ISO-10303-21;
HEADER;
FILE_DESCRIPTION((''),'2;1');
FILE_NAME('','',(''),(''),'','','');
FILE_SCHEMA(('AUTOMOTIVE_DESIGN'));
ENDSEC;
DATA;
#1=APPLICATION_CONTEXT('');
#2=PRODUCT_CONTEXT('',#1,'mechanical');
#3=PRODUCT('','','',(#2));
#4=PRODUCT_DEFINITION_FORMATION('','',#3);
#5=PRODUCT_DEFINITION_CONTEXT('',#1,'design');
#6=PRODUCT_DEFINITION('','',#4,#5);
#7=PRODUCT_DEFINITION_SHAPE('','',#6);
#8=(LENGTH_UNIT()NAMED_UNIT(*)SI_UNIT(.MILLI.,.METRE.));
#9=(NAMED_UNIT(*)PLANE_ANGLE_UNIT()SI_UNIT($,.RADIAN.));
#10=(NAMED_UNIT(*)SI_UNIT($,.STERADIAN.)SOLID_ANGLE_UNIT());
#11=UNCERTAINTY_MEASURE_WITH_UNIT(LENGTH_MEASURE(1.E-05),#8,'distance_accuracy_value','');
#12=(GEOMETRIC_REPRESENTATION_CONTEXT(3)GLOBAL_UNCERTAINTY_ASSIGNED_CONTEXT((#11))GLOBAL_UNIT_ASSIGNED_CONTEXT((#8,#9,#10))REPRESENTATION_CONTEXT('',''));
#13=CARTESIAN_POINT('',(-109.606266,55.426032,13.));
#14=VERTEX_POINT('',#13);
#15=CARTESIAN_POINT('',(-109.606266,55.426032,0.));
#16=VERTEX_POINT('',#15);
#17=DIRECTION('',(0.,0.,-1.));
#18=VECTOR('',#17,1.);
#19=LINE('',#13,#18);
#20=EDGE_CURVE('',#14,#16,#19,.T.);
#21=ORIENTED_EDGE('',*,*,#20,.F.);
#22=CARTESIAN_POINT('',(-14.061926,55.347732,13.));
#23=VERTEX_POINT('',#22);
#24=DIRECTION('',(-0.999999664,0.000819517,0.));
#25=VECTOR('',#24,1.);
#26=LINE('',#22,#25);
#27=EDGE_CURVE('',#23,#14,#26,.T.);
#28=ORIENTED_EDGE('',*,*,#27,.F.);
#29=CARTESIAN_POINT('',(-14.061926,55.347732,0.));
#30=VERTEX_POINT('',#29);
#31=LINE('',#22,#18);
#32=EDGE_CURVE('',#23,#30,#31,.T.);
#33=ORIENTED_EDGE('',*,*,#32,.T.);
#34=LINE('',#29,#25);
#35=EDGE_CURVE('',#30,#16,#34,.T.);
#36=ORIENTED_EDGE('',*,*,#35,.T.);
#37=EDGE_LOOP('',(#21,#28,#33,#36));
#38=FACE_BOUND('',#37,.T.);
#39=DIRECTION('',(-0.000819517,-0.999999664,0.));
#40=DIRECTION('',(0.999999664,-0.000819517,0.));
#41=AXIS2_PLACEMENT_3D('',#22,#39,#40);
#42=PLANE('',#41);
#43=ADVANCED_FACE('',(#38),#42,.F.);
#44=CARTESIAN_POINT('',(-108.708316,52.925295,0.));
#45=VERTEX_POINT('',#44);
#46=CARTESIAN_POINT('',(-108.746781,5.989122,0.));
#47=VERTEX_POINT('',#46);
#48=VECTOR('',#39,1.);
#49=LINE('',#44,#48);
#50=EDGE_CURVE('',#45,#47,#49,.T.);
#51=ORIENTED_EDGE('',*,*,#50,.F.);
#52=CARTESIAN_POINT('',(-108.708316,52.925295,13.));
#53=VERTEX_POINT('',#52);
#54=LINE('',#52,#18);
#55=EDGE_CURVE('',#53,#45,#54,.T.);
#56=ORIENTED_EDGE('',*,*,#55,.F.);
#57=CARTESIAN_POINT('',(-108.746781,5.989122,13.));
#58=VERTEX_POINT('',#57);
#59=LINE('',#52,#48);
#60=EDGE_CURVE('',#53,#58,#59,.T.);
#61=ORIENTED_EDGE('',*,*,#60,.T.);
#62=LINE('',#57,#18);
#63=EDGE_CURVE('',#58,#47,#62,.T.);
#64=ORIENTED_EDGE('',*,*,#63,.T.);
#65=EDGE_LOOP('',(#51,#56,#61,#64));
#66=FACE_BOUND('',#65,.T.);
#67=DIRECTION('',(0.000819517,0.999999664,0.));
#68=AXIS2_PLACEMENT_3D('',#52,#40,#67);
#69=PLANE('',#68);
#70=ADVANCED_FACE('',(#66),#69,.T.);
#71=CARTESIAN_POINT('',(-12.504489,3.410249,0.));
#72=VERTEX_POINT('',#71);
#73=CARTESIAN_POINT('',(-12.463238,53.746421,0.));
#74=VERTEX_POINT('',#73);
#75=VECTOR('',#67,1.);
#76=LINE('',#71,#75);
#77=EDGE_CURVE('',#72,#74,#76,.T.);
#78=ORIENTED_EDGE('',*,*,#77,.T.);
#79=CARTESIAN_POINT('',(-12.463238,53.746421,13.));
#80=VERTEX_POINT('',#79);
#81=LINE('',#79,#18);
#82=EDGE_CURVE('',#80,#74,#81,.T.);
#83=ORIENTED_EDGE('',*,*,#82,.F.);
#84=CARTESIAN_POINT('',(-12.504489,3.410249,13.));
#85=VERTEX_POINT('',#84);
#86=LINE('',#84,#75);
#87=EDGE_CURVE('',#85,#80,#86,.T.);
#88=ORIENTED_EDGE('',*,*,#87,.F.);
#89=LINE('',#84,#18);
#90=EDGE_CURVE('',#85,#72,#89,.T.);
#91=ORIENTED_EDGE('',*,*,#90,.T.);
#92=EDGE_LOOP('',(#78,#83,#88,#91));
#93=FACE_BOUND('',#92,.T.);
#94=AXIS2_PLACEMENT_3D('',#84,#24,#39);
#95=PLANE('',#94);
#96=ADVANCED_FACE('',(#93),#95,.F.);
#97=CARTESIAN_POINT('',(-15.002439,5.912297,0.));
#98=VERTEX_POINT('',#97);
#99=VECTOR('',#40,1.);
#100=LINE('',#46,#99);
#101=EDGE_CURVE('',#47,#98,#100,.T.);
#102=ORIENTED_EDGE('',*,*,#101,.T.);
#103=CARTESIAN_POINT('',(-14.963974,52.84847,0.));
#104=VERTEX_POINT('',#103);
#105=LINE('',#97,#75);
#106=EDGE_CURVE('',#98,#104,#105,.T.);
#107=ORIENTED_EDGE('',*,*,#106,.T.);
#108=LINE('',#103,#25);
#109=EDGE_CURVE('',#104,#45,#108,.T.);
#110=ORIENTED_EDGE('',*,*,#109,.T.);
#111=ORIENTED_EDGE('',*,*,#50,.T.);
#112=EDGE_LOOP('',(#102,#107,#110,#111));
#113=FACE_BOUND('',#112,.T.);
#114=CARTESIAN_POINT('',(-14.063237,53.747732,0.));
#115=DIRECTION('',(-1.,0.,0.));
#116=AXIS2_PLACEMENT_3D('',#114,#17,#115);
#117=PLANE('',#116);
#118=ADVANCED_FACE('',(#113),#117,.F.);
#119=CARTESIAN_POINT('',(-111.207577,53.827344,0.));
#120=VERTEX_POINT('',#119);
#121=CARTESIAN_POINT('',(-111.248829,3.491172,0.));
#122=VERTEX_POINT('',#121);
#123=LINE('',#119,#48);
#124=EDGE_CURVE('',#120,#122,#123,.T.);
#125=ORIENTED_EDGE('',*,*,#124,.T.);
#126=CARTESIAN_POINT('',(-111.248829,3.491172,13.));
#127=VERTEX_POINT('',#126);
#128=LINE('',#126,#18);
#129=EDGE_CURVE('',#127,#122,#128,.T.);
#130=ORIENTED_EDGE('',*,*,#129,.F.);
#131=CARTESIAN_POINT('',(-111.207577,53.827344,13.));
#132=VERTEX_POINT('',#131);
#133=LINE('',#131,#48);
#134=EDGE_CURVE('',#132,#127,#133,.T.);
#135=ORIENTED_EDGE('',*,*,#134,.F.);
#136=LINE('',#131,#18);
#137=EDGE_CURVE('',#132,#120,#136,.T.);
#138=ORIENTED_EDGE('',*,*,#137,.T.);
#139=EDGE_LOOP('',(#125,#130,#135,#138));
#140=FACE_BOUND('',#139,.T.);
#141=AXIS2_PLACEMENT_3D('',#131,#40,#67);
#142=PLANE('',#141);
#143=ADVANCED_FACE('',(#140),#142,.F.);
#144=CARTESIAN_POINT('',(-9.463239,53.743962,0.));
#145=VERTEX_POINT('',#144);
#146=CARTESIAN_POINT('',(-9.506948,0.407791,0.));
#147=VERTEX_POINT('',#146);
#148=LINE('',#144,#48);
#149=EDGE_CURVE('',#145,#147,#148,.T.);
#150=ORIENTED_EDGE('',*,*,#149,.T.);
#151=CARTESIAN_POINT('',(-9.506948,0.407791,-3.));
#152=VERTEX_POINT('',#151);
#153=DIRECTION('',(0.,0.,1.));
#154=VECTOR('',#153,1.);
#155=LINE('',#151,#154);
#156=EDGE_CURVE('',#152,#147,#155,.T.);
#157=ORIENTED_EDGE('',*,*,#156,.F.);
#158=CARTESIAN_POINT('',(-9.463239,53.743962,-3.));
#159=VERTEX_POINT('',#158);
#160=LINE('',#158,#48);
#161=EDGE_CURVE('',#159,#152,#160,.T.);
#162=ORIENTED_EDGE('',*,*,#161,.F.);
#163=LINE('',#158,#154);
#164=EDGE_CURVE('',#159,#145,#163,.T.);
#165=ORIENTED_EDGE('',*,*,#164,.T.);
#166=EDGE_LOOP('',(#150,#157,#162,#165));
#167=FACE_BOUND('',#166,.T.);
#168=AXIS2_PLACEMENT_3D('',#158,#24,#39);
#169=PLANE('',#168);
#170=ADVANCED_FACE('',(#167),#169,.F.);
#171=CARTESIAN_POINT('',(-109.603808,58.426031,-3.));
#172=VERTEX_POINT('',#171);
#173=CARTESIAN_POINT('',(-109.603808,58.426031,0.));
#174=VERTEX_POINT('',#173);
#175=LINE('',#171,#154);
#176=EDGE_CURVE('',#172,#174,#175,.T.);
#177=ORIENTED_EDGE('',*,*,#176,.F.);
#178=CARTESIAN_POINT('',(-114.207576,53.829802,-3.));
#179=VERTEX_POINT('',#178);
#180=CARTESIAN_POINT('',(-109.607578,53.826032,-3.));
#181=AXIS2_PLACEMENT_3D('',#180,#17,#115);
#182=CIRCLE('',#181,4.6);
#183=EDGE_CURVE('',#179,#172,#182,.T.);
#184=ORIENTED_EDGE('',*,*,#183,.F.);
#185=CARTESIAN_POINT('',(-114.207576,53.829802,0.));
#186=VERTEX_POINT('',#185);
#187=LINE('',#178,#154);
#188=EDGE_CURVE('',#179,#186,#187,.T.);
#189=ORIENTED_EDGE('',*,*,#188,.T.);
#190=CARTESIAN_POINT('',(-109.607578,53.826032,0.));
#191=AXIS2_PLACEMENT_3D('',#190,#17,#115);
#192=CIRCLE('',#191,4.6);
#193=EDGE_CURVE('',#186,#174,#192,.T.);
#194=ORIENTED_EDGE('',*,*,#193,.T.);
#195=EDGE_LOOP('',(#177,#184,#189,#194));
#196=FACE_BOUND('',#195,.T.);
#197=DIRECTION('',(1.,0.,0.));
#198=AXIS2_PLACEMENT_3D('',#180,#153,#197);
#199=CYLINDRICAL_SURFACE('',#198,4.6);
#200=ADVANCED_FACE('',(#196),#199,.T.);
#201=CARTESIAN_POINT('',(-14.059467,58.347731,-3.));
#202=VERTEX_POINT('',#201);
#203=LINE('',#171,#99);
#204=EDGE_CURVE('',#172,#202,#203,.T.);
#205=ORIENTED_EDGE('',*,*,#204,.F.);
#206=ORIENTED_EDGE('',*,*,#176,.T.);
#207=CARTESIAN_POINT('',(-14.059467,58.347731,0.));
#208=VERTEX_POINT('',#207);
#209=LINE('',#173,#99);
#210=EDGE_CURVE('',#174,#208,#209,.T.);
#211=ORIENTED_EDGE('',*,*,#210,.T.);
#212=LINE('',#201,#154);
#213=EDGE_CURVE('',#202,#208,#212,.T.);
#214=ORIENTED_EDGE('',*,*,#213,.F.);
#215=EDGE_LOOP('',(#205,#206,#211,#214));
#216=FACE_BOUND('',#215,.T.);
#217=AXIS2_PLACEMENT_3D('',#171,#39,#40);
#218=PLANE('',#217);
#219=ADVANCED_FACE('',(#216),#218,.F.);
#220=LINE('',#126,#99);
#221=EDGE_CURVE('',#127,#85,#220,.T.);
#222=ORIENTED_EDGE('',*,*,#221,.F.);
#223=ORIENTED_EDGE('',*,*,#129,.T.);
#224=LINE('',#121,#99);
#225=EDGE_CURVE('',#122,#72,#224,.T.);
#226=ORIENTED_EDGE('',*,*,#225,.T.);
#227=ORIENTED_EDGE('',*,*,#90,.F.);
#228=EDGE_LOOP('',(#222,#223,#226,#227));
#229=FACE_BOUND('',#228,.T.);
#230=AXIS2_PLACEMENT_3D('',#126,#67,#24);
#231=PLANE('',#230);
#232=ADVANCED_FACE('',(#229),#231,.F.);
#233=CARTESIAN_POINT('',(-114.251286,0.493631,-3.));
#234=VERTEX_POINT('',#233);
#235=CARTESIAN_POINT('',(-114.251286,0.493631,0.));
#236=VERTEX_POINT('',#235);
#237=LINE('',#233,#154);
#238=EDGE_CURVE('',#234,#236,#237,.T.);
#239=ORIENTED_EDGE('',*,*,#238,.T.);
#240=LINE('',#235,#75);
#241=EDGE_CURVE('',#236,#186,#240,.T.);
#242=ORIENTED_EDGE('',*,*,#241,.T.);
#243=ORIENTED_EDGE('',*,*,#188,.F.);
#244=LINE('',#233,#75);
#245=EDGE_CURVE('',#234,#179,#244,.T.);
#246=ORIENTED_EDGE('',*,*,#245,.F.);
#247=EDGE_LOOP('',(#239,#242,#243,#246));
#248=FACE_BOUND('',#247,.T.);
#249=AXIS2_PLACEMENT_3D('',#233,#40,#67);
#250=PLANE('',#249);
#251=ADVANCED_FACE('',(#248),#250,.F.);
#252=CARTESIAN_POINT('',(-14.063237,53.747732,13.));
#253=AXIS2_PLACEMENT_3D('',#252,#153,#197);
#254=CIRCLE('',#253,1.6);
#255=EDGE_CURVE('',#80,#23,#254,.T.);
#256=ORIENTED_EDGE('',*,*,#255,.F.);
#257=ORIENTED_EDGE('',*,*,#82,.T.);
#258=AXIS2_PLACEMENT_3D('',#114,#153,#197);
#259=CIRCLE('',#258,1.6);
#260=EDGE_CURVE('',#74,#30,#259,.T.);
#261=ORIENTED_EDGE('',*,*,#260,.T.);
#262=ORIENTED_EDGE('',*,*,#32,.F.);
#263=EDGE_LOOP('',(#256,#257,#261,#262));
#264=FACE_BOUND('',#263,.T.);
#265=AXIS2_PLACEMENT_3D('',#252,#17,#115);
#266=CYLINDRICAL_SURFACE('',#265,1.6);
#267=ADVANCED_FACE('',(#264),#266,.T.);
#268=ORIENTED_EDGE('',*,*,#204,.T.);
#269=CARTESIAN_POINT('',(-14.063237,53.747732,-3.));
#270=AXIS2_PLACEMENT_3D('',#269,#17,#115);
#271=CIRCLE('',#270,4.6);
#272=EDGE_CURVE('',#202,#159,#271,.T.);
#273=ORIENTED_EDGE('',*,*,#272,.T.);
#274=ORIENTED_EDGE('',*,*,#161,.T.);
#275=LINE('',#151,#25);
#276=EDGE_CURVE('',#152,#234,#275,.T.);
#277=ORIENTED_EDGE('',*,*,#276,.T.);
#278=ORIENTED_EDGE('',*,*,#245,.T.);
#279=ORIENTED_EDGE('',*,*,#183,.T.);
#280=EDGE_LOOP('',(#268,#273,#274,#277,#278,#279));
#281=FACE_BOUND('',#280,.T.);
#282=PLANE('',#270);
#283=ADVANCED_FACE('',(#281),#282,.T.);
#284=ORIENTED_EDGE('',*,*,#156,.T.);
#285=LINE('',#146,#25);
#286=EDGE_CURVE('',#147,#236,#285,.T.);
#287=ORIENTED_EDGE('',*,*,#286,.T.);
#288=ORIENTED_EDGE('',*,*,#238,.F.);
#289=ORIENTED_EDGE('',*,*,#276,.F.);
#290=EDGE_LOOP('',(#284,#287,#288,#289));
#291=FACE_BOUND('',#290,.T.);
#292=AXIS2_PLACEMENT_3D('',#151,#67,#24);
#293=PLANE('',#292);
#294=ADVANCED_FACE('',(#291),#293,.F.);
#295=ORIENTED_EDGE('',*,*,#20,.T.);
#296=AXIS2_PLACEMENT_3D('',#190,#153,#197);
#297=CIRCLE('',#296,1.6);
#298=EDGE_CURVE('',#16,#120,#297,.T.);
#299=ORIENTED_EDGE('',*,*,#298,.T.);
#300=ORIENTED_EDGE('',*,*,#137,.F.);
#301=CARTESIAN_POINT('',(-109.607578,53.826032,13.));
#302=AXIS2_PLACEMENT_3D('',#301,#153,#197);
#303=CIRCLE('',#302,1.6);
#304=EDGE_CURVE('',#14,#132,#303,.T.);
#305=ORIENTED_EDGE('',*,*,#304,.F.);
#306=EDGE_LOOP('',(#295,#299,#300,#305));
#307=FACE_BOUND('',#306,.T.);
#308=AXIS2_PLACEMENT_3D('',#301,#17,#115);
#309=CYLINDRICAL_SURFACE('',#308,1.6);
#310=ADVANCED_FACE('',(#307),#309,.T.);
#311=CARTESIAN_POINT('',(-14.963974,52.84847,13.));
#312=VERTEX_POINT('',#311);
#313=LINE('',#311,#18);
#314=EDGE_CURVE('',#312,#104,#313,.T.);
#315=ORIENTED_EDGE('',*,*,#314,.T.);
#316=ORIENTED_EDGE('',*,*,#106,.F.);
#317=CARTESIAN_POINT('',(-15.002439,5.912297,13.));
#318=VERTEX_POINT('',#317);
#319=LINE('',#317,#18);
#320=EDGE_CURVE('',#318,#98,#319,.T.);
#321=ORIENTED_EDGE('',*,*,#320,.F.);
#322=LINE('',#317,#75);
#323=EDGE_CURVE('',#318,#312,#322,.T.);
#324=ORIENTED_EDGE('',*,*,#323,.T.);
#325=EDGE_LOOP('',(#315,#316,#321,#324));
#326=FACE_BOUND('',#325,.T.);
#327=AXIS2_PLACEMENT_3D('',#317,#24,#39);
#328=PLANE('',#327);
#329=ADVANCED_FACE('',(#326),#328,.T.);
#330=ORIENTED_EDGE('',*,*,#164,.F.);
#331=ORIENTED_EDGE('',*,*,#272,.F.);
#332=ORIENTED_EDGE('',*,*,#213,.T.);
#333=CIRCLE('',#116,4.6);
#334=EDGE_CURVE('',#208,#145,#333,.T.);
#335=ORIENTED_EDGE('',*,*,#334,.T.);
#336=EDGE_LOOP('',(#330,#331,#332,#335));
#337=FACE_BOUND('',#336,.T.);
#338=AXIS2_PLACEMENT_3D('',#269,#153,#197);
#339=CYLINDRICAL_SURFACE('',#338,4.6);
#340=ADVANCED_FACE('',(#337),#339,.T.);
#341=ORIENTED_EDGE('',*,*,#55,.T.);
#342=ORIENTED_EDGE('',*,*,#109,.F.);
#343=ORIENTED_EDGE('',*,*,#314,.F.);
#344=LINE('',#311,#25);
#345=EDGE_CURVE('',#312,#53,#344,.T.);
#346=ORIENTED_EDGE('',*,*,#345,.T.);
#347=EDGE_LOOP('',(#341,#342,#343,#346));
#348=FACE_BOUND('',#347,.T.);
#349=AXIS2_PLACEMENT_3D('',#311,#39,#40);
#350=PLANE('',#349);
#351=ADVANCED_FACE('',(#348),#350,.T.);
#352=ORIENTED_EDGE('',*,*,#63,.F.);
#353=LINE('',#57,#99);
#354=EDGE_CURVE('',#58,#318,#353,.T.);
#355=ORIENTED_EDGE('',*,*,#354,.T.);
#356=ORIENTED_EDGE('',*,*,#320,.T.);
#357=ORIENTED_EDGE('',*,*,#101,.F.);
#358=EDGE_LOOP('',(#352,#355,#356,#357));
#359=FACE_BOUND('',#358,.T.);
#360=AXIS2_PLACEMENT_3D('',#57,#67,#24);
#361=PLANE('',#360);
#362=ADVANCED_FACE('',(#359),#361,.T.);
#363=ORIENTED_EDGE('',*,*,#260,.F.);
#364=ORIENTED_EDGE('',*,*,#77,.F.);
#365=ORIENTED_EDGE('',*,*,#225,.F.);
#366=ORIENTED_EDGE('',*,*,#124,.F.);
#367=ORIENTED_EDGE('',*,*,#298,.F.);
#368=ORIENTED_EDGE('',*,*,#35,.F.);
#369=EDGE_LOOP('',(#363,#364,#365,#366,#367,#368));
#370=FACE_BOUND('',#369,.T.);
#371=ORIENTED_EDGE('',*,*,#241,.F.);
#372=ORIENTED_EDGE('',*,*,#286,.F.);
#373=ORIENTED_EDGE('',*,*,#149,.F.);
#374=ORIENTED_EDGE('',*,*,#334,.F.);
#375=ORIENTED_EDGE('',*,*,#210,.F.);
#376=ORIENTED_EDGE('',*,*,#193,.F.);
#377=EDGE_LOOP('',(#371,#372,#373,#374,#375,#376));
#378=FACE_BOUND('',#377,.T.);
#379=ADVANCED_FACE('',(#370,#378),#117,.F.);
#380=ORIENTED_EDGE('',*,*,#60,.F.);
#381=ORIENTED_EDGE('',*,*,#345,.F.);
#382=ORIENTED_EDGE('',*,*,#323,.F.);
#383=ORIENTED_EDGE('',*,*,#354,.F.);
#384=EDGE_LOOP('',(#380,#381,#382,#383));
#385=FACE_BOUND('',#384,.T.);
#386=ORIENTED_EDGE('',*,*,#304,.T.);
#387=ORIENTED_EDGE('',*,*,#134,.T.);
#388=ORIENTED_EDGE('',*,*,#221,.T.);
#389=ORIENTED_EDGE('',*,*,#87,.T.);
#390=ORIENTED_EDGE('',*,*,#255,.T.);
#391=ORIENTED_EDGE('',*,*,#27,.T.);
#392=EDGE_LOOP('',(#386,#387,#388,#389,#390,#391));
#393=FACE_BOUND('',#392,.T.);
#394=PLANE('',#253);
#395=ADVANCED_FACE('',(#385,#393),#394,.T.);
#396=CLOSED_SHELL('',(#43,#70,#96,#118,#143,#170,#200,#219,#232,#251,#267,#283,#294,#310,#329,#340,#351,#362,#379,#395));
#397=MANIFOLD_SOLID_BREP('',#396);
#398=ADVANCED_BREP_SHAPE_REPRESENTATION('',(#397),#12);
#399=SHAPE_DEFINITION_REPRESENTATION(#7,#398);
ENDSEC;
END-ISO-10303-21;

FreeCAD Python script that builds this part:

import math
import FreeCAD as App
import Part
import Sketcher
from FreeCAD import Vector
Q = App.Units.Quantity


def add_polygon(sketch, points):
    """Adds a closed chain of lines whose ends are joined by coincident constraints."""
    first, n = sketch.GeometryCount, len(points)
    for a, b in zip(points, points[1:] + points[:1]):
        sketch.addGeometry(Part.LineSegment(App.Vector(*a, 0), App.Vector(*b, 0)), False)
    for i in range(n):
        sketch.addConstraint(Sketcher.Constraint("Coincident", first + i, 2, first + (i + 1) % n, 1))

doc = App.newDocument("Part")
body = doc.addObject("PartDesign::Body", "Body")

# Sketch on XY plane
sketch1 = doc.addObject("Sketcher::SketchObject", "Sketch")
body.addObject(sketch1)
sketch1.AttachmentSupport = (doc.XY_Plane, [""])
sketch1.MapMode = "FlatFace"
sketch1.addGeometry(Part.LineSegment(Vector(-111.2, 3.5, 0), Vector(-12.5, 3.4, 0)), False)  # 0
sketch1.addGeometry(Part.LineSegment(Vector(-12.5, 3.4, 0), Vector(-12.5, 53.7, 0)), False)  # 1
sketch1.addGeometry(Part.ArcOfCircle(Part.Circle(Vector(-14.1, 53.7, 0), Vector(0, 0, 1), 1.6), math.radians(0), math.radians(90)), False)  # 2
sketch1.addGeometry(Part.LineSegment(Vector(-14.1, 55.3, 0), Vector(-109.6, 55.4, 0)), False)  # 3
sketch1.addGeometry(Part.ArcOfCircle(Part.Circle(Vector(-109.6, 53.8, 0), Vector(0, 0, 1), 1.6), math.radians(90), math.radians(180)), False)  # 4
sketch1.addGeometry(Part.LineSegment(Vector(-111.2, 53.8, 0), Vector(-111.2, 3.5, 0)), False)  # 5
add_polygon(sketch1, [(-15, 5.9), (-108.7, 6), (-108.7, 52.9), (-15, 52.8)])  # lines 6-9
sketch1.addConstraint([
    Sketcher.Constraint("Coincident", 0, 2, 1, 1),
    Sketcher.Constraint("Tangent", 1, 2, 2, 1),
    Sketcher.Constraint("Tangent", 2, 2, 3, 1),
    Sketcher.Constraint("Tangent", 3, 2, 4, 1),
    Sketcher.Constraint("Tangent", 4, 2, 5, 1),
    Sketcher.Constraint("Coincident", 5, 2, 0, 1),
    Sketcher.Constraint("Equal", 2, 4),
    Sketcher.Constraint("Perpendicular", 0, 1),
    Sketcher.Constraint("Perpendicular", 1, 3),
    Sketcher.Constraint("Perpendicular", 3, 5),
    Sketcher.Constraint("Perpendicular", 5, 6),
    Sketcher.Constraint("Perpendicular", 6, 7),
    Sketcher.Constraint("Perpendicular", 7, 8),
    Sketcher.Constraint("Perpendicular", 8, 9),
    Sketcher.Constraint("Radius", 2, Q("1.6 mm")),
    Sketcher.Constraint("DistanceY", 2, 3, 4, 3, Q("0.0783 mm")),
    Sketcher.Constraint("DistanceX", 9, 2, 1, 2, Q("2.539202 mm")),
    Sketcher.Constraint("Distance", 1, Q("50.336189 mm")),
    Sketcher.Constraint("Distance", 7, Q("46.936189 mm")),
    Sketcher.Constraint("DistanceX", 0, 2, -1, 1, Q("12.504489 mm")),
    Sketcher.Constraint("DistanceY", -1, 1, 0, 2, Q("3.410249 mm")),
    Sketcher.Constraint("DistanceX", 5, 2, -1, 1, Q("111.248829 mm")),
    Sketcher.Constraint("DistanceX", 6, 2, -1, 1, Q("108.746781 mm")),
    Sketcher.Constraint("DistanceY", -1, 1, 6, 2, Q("5.989122 mm")),
])
pad1 = doc.addObject("PartDesign::Pad", "Pad")
body.addObject(pad1)
pad1.Profile = sketch1
pad1.Length = 13

# Sketch on XY plane
sketch2 = doc.addObject("Sketcher::SketchObject", "Sketch001")
body.addObject(sketch2)
sketch2.AttachmentSupport = (doc.XY_Plane, [""])
sketch2.MapMode = "FlatFace"
sketch2.addGeometry([
    Part.LineSegment(Vector(-9.5, 53.7, 0), Vector(-9.5, 0.4, 0)),  # 0
    Part.LineSegment(Vector(-9.5, 0.4, 0), Vector(-114.3, 0.5, 0)),  # 1
    Part.LineSegment(Vector(-114.3, 0.5, 0), Vector(-114.2, 53.8, 0)),  # 2
    Part.ArcOfCircle(Part.Circle(Vector(-109.6, 53.8, 0), Vector(0, 0, 1), 4.6), math.radians(90), math.radians(180)),  # 3
    Part.LineSegment(Vector(-109.6, 58.4, 0), Vector(-14.1, 58.3, 0)),  # 4
    Part.ArcOfCircle(Part.Circle(Vector(-14.1, 53.7, 0), Vector(0, 0, 1), 4.6), math.radians(0), math.radians(90)),  # 5
], False)
sketch2.addConstraint([
    Sketcher.Constraint("Coincident", 0, 2, 1, 1),
    Sketcher.Constraint("Coincident", 1, 2, 2, 1),
    Sketcher.Constraint("Tangent", 2, 2, 3, 2),
    Sketcher.Constraint("Tangent", 3, 1, 4, 1),
    Sketcher.Constraint("Tangent", 4, 2, 5, 2),
    Sketcher.Constraint("Tangent", 5, 1, 0, 1),
    Sketcher.Constraint("Equal", 3, 5),
    Sketcher.Constraint("Perpendicular", 0, 1),
    Sketcher.Constraint("Perpendicular", 1, 2),
    Sketcher.Constraint("Perpendicular", 2, 4),
    Sketcher.Constraint("Radius", 3, Q("4.6 mm")),
    Sketcher.Constraint("DistanceY", 5, 3, 3, 3, Q("0.0783 mm")),
    Sketcher.Constraint("DistanceY", 1, 2, 3, 3, Q("53.332401 mm")),
    Sketcher.Constraint("DistanceX", 0, 2, -1, 1, Q("9.506948 mm")),
    Sketcher.Constraint("DistanceY", -1, 1, 0, 2, Q("0.407791 mm")),
    Sketcher.Constraint("DistanceX", 3, 3, 5, 3, Q("95.544341 mm")),
])
pad2 = doc.addObject("PartDesign::Pad", "Pad001")
body.addObject(pad2)
pad2.Profile = sketch2
pad2.Length = 3
pad2.Reversed = True

doc.recompute()
